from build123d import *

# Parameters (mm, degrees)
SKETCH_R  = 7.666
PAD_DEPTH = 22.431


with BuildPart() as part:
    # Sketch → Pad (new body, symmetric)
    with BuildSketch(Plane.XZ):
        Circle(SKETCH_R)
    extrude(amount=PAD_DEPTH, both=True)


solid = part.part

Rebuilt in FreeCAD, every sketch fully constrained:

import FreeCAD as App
import Part
import Sketcher

V = App.Vector

doc = App.newDocument("Part")
body = doc.addObject("PartDesign::Body", "Body")

sketch1 = doc.addObject("Sketcher::SketchObject", "Sketch")
body.addObject(sketch1)
sketch1.AttachmentSupport = (doc.XZ_Plane, [""])
sketch1.MapMode = "FlatFace"
sketch1.addGeometry(Part.Circle(V(0, 0, 0), V(0, 0, 1), 8), False)
sketch1.addConstraint(Sketcher.Constraint("Coincident", 0, 3, -1, 1))
sketch1.addConstraint(Sketcher.Constraint("Diameter", 0, 15.332))
pad1 = doc.addObject("PartDesign::Pad", "Pad")
body.addObject(pad1)
pad1.Profile = sketch1
pad1.Length = 44.862
pad1.Midplane = True

doc.recompute()
